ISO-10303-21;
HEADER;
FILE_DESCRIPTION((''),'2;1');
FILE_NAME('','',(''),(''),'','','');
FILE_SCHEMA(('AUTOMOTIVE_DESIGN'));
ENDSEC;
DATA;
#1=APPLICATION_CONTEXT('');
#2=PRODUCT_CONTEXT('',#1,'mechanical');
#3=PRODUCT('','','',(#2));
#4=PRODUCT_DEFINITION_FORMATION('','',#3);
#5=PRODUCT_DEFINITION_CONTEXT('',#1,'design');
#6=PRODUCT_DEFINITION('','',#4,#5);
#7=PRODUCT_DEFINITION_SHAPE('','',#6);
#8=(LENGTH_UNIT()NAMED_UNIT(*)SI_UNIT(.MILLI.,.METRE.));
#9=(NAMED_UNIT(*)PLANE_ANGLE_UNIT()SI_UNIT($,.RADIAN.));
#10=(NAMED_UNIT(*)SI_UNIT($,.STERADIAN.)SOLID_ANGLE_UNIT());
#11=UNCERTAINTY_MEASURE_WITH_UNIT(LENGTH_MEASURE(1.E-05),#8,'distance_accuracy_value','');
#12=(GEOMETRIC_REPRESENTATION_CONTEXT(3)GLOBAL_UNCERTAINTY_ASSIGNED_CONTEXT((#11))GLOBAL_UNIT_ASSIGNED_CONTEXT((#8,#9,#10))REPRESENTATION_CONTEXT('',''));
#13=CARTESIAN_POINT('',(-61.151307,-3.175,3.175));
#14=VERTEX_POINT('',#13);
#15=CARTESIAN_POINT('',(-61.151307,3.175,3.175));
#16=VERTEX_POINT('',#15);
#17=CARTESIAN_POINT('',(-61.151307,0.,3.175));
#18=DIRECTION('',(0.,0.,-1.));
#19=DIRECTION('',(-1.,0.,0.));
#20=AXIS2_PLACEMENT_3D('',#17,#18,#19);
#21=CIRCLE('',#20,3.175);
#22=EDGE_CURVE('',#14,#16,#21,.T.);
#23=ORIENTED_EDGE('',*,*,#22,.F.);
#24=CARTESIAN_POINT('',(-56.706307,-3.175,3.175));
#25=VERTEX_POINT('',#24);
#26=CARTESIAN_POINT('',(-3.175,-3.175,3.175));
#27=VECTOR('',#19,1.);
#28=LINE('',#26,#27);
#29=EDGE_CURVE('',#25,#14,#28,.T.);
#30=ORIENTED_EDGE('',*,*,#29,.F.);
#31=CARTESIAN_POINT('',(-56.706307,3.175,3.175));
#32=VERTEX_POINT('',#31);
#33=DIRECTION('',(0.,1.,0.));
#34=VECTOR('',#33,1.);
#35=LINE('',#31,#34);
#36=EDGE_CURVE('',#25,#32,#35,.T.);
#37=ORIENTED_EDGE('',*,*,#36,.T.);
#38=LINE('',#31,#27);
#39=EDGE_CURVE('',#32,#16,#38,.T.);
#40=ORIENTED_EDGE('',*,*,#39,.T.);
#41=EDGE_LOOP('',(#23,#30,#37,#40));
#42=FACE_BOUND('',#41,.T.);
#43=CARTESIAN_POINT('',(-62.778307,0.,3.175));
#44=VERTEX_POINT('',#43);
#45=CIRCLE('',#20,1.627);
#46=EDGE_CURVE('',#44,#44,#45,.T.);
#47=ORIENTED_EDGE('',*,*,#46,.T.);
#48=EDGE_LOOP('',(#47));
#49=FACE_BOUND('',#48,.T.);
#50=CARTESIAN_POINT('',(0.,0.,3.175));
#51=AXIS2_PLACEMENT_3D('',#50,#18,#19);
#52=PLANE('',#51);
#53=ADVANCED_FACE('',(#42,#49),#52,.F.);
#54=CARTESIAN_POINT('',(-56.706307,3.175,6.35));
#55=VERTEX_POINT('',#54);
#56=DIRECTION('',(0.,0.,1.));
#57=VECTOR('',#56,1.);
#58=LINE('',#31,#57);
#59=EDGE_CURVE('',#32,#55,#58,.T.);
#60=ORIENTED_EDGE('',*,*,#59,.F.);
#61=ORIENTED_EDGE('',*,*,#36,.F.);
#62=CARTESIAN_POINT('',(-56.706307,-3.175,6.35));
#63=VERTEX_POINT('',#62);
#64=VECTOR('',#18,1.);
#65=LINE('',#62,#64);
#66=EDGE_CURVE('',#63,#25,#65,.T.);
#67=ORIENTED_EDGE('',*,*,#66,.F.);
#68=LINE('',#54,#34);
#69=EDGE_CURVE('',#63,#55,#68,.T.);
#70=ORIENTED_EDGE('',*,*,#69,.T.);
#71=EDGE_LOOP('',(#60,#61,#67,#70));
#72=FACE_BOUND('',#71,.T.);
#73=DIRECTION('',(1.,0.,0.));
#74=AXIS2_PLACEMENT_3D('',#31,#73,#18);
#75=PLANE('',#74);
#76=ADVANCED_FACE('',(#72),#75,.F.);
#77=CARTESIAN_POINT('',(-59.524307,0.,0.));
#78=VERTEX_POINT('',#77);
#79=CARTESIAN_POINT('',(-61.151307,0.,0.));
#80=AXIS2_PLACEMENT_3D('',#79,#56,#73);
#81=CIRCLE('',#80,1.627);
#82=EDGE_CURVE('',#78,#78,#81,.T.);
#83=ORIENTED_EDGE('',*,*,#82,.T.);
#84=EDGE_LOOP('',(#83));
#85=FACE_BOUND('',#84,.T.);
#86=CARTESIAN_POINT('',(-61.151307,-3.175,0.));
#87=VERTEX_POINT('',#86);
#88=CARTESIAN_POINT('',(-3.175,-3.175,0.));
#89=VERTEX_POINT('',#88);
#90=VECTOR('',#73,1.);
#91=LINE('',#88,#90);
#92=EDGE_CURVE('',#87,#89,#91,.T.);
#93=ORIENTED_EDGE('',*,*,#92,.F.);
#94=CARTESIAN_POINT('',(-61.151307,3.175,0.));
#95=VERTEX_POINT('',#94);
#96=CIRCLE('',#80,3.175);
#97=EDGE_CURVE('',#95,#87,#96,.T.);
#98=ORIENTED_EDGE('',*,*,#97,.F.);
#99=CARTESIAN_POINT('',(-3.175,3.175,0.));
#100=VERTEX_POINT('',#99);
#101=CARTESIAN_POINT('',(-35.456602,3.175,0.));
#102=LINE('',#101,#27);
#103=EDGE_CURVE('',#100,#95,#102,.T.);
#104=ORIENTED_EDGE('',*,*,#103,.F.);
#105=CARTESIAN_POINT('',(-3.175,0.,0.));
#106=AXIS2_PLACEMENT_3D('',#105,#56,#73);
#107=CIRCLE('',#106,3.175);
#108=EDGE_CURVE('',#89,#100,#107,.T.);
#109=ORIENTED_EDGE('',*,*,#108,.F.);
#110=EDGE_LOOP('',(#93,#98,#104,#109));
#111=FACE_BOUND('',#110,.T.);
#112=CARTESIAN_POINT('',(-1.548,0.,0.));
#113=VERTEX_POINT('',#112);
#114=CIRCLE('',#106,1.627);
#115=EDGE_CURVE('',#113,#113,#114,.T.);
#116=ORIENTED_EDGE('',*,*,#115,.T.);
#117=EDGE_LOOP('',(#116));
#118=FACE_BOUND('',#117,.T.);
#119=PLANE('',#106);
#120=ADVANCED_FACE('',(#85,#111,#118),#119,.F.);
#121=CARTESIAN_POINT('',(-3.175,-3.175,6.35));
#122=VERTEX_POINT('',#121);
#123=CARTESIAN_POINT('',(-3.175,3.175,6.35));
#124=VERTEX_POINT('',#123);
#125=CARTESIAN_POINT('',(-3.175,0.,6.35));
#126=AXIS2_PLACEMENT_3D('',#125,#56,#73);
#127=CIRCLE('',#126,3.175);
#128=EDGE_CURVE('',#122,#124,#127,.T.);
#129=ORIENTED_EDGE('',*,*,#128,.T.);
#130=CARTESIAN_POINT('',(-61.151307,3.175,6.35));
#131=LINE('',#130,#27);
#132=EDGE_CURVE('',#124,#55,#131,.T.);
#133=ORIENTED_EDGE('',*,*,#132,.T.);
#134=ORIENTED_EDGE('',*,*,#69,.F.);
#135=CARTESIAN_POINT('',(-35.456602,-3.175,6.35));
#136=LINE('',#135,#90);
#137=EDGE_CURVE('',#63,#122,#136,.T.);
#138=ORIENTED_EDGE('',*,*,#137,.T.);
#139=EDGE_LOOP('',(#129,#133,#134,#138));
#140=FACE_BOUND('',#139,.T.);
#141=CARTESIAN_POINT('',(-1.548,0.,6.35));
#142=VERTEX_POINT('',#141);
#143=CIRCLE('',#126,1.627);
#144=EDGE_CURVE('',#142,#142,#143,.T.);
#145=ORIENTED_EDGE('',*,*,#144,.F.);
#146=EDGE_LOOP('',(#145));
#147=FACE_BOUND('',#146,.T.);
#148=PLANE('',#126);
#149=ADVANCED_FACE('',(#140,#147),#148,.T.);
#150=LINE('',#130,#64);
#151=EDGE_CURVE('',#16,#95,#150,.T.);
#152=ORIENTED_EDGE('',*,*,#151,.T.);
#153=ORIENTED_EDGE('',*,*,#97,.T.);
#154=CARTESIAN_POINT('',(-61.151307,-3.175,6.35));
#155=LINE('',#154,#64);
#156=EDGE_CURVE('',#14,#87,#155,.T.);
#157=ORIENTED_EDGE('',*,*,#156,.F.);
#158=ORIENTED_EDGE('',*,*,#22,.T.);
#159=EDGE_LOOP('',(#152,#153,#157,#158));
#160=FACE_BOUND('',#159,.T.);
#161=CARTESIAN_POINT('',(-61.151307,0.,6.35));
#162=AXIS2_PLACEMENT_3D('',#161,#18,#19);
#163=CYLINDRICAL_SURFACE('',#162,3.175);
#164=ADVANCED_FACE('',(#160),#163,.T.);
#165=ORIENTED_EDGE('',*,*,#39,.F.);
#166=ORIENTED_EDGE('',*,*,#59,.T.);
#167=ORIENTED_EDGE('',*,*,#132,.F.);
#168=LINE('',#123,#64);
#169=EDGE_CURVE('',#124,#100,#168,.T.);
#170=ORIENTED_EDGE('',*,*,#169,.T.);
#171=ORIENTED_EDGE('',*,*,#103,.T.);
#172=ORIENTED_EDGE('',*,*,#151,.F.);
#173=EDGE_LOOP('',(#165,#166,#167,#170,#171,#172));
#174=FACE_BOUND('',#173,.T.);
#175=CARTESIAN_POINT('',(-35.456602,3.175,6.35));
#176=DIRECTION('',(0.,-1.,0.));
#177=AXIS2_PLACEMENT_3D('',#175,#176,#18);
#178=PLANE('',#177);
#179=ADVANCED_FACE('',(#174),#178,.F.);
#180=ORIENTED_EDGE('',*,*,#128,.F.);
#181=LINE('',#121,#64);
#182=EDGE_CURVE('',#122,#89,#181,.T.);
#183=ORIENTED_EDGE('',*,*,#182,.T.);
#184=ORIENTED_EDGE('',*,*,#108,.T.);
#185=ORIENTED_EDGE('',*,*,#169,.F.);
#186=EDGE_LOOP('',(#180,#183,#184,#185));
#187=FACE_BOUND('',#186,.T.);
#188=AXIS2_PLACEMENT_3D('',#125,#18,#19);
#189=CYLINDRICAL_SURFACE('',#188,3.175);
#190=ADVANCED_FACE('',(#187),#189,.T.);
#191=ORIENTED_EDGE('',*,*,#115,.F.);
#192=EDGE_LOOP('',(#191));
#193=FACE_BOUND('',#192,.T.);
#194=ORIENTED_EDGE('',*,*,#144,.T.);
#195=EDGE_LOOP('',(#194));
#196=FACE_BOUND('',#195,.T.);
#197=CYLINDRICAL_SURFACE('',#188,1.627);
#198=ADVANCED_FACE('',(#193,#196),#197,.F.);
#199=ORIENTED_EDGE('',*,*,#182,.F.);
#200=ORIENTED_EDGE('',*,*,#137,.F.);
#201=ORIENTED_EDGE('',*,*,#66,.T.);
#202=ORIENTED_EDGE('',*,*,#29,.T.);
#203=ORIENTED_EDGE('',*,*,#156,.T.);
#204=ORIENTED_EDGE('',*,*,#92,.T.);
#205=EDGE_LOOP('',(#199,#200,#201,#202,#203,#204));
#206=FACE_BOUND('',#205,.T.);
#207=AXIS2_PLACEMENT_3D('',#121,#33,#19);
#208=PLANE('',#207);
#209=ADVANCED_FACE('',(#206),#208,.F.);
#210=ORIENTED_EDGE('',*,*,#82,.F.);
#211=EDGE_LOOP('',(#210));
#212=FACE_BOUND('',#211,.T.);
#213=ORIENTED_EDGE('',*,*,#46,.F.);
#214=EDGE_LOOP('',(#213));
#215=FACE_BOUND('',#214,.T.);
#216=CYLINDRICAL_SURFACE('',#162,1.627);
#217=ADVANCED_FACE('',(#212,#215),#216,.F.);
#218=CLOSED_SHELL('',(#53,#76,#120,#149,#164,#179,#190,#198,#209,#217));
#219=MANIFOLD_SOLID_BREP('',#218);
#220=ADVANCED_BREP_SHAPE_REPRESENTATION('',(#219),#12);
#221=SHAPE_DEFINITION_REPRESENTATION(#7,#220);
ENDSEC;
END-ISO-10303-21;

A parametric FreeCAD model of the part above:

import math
import FreeCAD as App
import Part
import Sketcher

V = App.Vector
Q = App.Units.Quantity


def add_polygon(sketch, points):
    """Adds a closed chain of lines whose ends are joined by coincident constraints."""
    first, n = sketch.GeometryCount, len(points)
    for a, b in zip(points, points[1:] + points[:1]):
        sketch.addGeometry(Part.LineSegment(App.Vector(*a, 0), App.Vector(*b, 0)), False)
    for i in range(n):
        sketch.addConstraint(Sketcher.Constraint("Coincident", first + i, 2, first + (i + 1) % n, 1))

doc = App.newDocument("Part")
body = doc.addObject("PartDesign::Body", "Body")

sketch1 = body.newObject("Sketcher::SketchObject", "Sketch")
sketch1.AttachmentSupport = (doc.getObject("XY_Plane"), [""])
sketch1.MapMode = "FlatFace"
sketch1.addGeometry([
    Part.ArcOfCircle(Part.Circle(V(-3.2, 0, 0), V(0, 0, 1), 3.2), math.radians(0), math.radians(90)),
    Part.LineSegment(V(-3.2, 3.2, 0), V(-61.2, 3.2, 0)),
    Part.ArcOfCircle(Part.Circle(V(-61.2, 0, 0), V(0, 0, 1), 3.2), math.radians(90), math.radians(180)),
    Part.ArcOfCircle(Part.Circle(V(-61.2, 0, 0), V(0, 0, 1), 3.2), math.radians(-180), math.radians(-90)),
    Part.LineSegment(V(-61.2, -3.2, 0), V(-3.2, -3.2, 0)),
    Part.ArcOfCircle(Part.Circle(V(-3.2, 0, 0), V(0, 0, 1), 3.2), math.radians(-90), math.radians(0)),
    Part.Circle(V(-3.2, 0, 0), V(0, 0, 1), 1.6),
    Part.Circle(V(-61.2, 0, 0), V(0, 0, 1), 1.6),
], False)
sketch1.addConstraint([
    Sketcher.Constraint("Tangent", 0, 2, 1, 1),
    Sketcher.Constraint("Tangent", 1, 2, 2, 1),
    Sketcher.Constraint("Tangent", 2, 2, 3, 1),
    Sketcher.Constraint("Tangent", 3, 2, 4, 1),
    Sketcher.Constraint("Tangent", 4, 2, 5, 1),
    Sketcher.Constraint("Tangent", 5, 2, 0, 1),
    Sketcher.Constraint("Horizontal", 1),
    Sketcher.Constraint("Horizontal", 4),
    Sketcher.Constraint("Coincident", 5, 2, -1, 1),
    Sketcher.Constraint("Coincident", 6, 3, 0, 3),
    Sketcher.Constraint("Coincident", 7, 3, 2, 3),
    Sketcher.Constraint("Equal", 0, 2),
    Sketcher.Constraint("Equal", 2, 3),
    Sketcher.Constraint("Equal", 6, 7),
    Sketcher.Constraint("PointOnObject", 0, 3, -1),
    Sketcher.Constraint("PointOnObject", 2, 2, -1),
    Sketcher.Constraint("Radius", 0, Q("0.125 in")),
    Sketcher.Constraint("Diameter", 6, Q("3.254 mm")),
    Sketcher.Constraint("DistanceX", 1, 2, 1, 1, Q("57.976307 mm")),
])
pad1 = body.newObject("PartDesign::Pad", "Pad")
pad1.Profile = sketch1
pad1.Length = Q("0.25 in")

sketch2 = body.newObject("Sketcher::SketchObject", "Sketch001")
sketch2.AttachmentSupport = (doc.getObject("XY_Plane"), [""])
sketch2.MapMode = "FlatFace"
sketch2.AttachmentOffset = App.Placement(V(0, 0, 0.25 * 25.4), App.Rotation())
add_polygon(sketch2, [(-65, 3), (-65, -5), (-57, -5), (-57, 3)])
sketch2.addConstraint([
    Sketcher.Constraint("Vertical", 0),
    Sketcher.Constraint("Horizontal", 1),
    Sketcher.Constraint("Vertical", 2),
    Sketcher.Constraint("Horizontal", 3),
    Sketcher.Constraint("DistanceY", -1, 1, 2, 2, Q("0.125 in")),
    Sketcher.Constraint("DistanceX", 1, 1, 1, 2, Q("8.278201 mm")),
    Sketcher.Constraint("DistanceY", 0, 2, 0, 1, Q("8.193042 mm")),
    Sketcher.Constraint("DistanceX", 0, 2, -1, 1, Q("64.984508 mm")),
])
pocket1 = body.newObject("PartDesign::Pocket", "Pocket")
pocket1.Profile = sketch2
pocket1.Length = Q("0.125 in")

doc.recompute()
